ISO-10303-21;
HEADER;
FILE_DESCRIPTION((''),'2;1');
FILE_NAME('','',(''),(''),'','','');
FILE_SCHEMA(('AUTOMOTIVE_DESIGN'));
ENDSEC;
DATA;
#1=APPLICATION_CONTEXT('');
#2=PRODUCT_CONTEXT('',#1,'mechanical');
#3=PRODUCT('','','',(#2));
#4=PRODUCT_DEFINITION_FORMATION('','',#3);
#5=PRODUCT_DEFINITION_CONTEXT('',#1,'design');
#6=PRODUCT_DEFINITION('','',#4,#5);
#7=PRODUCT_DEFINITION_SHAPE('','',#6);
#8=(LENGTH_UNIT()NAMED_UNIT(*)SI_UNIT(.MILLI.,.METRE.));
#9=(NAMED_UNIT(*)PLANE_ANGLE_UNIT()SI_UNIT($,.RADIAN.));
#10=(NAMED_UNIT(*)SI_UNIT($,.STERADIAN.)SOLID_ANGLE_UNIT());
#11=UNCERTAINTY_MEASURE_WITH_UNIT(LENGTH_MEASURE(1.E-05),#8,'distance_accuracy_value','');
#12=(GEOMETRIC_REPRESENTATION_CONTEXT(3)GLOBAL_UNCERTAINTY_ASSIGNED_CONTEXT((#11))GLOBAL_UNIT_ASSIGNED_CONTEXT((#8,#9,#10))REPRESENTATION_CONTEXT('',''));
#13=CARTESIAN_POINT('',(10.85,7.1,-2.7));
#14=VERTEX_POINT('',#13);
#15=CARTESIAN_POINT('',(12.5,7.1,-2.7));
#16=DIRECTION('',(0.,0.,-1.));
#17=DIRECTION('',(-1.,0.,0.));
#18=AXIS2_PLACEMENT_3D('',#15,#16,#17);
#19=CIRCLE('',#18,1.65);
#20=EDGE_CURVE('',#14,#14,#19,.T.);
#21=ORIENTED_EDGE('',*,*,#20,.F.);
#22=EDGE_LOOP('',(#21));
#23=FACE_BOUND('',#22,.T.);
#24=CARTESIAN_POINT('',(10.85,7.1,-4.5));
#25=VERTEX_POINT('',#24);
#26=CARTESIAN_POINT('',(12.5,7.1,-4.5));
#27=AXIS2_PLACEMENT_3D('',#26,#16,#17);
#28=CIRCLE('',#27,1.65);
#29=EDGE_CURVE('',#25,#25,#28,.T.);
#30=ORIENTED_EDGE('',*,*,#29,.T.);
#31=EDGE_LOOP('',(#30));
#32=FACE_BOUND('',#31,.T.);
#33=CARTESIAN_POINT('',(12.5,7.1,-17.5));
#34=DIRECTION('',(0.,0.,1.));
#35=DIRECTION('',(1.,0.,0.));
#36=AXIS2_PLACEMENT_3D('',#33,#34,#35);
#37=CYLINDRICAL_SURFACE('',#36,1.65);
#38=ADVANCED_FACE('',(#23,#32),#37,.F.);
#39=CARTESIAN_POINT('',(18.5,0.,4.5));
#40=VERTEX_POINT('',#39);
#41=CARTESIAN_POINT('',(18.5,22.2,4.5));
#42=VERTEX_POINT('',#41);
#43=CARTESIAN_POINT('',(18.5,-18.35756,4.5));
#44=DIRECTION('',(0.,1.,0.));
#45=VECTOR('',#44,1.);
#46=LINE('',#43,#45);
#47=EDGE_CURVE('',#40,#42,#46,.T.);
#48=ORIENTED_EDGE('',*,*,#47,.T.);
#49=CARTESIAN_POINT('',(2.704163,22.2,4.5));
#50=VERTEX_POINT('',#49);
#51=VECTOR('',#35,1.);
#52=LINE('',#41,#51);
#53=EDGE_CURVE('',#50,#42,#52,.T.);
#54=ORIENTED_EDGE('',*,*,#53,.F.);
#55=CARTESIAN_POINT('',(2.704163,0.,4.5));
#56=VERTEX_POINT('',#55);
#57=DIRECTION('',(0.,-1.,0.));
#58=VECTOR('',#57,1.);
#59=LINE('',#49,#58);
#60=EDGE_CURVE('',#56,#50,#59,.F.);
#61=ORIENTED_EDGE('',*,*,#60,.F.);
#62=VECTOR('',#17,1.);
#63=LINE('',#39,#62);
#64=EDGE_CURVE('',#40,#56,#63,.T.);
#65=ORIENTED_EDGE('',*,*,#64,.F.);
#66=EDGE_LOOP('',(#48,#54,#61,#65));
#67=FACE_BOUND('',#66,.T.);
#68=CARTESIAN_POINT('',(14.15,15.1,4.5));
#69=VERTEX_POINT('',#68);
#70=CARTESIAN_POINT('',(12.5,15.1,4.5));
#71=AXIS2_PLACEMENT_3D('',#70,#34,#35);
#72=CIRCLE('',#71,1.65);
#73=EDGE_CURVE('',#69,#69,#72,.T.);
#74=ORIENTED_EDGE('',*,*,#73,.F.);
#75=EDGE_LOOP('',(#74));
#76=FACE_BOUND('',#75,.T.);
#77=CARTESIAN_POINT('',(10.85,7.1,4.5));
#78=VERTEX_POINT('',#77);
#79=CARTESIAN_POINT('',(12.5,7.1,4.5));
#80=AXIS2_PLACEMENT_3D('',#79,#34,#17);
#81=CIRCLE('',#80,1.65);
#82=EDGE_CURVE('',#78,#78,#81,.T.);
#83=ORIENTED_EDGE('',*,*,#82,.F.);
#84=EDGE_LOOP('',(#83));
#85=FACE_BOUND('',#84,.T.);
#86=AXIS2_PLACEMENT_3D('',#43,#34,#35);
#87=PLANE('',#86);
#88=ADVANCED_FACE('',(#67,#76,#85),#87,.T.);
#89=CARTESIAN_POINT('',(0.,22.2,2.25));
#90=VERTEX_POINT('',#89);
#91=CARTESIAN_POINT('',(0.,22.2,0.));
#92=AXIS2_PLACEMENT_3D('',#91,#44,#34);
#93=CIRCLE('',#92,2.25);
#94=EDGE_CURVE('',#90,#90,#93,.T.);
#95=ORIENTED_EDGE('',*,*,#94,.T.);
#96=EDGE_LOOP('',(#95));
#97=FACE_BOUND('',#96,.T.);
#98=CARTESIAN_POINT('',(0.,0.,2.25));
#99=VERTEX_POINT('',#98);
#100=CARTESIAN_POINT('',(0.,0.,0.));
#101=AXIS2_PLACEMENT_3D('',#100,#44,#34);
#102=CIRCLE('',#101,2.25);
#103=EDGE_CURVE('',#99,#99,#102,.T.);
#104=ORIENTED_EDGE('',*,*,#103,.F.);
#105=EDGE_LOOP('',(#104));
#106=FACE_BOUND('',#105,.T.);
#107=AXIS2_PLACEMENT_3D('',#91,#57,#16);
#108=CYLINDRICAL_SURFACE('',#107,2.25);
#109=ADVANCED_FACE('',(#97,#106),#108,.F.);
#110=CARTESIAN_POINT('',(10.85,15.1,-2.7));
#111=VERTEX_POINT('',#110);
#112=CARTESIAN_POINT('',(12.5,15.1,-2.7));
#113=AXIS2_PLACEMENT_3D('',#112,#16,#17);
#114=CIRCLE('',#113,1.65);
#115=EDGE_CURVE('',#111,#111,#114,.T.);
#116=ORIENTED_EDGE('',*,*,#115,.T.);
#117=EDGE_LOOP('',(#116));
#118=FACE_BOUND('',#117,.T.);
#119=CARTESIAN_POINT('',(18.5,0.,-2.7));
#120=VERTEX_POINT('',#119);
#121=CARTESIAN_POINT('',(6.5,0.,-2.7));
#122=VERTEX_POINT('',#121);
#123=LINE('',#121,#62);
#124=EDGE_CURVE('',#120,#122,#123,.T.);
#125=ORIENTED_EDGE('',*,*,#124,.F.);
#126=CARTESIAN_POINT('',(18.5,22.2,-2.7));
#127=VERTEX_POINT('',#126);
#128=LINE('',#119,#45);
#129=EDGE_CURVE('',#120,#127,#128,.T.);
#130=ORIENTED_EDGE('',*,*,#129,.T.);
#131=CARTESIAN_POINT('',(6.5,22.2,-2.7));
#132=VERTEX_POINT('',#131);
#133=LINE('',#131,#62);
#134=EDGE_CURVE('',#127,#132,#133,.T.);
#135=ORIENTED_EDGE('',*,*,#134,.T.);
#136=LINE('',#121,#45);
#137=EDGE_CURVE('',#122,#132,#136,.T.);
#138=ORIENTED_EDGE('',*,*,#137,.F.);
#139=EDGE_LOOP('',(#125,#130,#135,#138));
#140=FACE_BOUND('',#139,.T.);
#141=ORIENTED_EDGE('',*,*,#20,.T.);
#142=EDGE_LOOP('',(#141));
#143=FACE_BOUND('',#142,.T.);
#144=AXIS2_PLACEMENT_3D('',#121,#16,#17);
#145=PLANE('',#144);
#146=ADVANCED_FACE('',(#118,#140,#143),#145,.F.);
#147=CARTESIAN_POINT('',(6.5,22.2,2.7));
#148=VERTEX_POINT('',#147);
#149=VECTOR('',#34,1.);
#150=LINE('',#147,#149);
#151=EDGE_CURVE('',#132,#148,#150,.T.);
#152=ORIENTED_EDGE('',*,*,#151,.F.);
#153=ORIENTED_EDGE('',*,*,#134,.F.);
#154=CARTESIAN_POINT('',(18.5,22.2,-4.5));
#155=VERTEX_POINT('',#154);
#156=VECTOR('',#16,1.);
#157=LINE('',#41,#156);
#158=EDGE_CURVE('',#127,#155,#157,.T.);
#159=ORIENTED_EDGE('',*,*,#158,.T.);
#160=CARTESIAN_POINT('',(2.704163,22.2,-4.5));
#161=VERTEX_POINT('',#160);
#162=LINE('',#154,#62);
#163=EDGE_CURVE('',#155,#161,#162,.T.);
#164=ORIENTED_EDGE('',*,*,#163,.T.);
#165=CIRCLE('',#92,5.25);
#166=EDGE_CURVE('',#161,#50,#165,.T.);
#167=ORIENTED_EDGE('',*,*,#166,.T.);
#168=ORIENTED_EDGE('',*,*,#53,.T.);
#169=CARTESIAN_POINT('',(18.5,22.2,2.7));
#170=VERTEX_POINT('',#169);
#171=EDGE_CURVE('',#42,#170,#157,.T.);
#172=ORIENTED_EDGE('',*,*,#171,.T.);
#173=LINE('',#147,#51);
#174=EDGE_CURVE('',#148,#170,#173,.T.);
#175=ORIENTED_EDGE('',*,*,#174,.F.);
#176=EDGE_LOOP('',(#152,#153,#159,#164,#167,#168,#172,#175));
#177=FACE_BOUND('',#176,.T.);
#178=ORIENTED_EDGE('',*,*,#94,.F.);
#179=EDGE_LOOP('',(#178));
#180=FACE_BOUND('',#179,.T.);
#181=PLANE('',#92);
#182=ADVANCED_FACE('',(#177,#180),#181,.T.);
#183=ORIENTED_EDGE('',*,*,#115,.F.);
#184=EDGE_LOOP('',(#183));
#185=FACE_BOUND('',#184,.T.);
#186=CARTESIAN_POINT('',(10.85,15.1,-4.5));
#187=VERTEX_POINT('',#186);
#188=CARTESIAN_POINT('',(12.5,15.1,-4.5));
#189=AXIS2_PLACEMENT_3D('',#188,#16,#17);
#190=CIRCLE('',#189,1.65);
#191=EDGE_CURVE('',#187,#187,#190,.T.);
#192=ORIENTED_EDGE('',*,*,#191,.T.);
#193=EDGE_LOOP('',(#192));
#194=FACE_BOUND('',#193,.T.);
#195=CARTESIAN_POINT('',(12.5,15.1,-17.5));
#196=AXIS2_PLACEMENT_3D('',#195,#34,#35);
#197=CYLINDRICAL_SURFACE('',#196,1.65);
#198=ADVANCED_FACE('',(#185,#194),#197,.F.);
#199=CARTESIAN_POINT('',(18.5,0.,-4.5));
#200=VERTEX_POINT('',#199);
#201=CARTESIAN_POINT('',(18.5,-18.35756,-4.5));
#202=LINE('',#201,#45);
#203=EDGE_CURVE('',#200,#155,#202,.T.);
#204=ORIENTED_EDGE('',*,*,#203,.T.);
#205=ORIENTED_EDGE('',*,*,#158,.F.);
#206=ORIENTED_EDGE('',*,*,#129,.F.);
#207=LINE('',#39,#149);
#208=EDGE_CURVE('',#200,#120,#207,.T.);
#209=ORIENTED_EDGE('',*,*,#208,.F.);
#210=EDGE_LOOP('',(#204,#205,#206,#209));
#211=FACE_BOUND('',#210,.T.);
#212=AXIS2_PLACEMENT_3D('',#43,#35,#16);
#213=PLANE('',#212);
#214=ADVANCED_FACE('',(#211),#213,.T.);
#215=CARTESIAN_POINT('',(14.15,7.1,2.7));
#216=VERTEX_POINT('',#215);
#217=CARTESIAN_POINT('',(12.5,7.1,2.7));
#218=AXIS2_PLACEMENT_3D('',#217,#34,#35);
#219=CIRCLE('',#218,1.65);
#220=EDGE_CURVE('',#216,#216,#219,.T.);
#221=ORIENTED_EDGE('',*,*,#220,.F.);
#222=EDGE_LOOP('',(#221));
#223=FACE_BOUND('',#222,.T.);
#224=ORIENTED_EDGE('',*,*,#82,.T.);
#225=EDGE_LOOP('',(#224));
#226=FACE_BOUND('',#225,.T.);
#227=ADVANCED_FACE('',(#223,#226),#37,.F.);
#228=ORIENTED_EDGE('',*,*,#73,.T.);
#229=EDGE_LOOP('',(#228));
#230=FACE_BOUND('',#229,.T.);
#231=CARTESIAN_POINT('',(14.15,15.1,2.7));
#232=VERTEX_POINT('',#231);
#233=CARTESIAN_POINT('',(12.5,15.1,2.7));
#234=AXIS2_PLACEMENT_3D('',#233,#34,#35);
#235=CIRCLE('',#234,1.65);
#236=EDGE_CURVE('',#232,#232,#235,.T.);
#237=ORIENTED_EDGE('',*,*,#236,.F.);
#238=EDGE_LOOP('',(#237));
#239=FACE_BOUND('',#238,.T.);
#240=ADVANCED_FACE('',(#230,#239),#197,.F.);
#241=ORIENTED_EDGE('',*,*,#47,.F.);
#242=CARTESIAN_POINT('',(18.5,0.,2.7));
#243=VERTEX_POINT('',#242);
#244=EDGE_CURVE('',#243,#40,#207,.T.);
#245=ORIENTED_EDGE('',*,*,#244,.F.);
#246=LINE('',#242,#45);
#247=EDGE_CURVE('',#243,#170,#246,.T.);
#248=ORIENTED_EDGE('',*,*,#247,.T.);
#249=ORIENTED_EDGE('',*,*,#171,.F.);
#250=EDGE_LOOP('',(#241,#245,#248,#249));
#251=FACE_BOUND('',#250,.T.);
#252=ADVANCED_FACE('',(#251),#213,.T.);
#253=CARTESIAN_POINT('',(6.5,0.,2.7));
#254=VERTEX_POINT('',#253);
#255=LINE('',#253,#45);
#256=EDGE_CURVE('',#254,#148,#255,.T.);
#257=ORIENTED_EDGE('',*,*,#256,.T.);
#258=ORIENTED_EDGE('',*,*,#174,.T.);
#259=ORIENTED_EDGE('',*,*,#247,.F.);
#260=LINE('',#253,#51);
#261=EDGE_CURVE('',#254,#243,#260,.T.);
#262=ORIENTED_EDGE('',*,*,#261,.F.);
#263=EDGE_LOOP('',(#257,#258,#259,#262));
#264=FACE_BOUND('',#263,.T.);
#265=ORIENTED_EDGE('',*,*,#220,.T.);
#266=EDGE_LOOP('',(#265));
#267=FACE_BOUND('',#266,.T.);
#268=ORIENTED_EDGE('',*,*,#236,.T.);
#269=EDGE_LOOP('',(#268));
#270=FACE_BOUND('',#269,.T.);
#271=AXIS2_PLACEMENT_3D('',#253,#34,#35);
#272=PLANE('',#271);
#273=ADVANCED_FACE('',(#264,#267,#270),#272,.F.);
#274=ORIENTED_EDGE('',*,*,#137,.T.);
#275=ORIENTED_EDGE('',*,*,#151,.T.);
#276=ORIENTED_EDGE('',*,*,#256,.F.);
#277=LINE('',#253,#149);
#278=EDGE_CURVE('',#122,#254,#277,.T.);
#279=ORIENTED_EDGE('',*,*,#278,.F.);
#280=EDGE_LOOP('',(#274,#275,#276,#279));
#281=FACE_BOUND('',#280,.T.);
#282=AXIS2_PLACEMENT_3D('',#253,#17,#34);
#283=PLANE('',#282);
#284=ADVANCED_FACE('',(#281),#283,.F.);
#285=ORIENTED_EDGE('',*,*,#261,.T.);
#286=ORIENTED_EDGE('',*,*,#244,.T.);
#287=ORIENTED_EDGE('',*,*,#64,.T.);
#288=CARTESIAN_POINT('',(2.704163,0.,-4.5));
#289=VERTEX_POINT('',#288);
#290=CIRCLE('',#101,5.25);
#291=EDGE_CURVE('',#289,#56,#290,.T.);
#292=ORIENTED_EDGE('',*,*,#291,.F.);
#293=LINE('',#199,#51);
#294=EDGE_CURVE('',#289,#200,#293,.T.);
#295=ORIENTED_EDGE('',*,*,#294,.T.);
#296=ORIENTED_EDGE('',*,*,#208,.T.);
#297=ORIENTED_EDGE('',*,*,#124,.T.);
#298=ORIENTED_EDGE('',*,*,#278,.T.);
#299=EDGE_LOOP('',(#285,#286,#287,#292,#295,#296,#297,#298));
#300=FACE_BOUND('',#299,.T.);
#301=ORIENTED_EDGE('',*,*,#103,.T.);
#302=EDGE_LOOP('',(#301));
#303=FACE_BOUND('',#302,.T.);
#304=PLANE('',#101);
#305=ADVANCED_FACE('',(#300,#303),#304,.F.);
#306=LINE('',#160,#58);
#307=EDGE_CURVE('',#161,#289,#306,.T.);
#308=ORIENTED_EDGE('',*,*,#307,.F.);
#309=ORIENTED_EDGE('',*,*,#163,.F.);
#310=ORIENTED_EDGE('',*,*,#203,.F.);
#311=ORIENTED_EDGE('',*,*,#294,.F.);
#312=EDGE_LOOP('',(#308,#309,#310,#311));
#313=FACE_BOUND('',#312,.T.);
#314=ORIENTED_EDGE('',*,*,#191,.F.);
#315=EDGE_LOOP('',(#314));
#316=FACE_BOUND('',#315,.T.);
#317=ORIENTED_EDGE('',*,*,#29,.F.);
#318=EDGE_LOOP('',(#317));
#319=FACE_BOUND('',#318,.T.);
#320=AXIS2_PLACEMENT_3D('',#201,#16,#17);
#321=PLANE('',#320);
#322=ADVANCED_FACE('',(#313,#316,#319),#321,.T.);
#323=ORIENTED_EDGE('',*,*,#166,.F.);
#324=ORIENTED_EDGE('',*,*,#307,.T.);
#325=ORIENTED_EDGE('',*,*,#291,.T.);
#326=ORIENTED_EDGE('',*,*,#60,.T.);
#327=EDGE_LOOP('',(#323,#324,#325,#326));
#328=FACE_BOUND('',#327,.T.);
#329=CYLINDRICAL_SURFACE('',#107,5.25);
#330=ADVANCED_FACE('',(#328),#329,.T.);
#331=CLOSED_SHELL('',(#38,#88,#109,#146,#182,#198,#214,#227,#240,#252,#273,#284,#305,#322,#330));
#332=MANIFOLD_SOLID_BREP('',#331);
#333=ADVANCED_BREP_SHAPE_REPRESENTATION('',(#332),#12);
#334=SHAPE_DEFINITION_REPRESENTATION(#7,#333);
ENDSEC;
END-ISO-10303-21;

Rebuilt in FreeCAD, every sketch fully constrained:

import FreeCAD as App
import Part
import Sketcher

V = App.Vector
Q = App.Units.Quantity


def add_polygon(sketch, points):
    """Adds a closed chain of lines whose ends are joined by coincident constraints."""
    first, n = sketch.GeometryCount, len(points)
    for a, b in zip(points, points[1:] + points[:1]):
        sketch.addGeometry(Part.LineSegment(App.Vector(*a, 0), App.Vector(*b, 0)), False)
    for i in range(n):
        sketch.addConstraint(Sketcher.Constraint("Coincident", first + i, 2, first + (i + 1) % n, 1))

doc = App.newDocument("Part")
body = doc.addObject("PartDesign::Body", "Body")

# Sketch on XZ plane
sketch1 = body.newObject("Sketcher::SketchObject", "Sketch")
sketch1.AttachmentSupport = (doc.getObject("XZ_Plane"), [""])
sketch1.MapMode = "FlatFace"
sketch1.addGeometry(Part.Circle(V(0, 0, 0), V(0, 0, 1), 5.2), False)
sketch1.addGeometry(Part.Circle(V(0, 0, 0), V(0, 0, 1), 2.2), False)
sketch1.addConstraint(Sketcher.Constraint("Coincident", 0, 3, -1, 1))
sketch1.addConstraint(Sketcher.Constraint("Coincident", 1, 3, -1, 1))
sketch1.addConstraint(Sketcher.Constraint("Diameter", 0, Q("10.5 mm")))
sketch1.addConstraint(Sketcher.Constraint("Diameter", 1, Q("4.5 mm")))
pad1 = body.newObject("PartDesign::Pad", "Pad")
pad1.Profile = sketch1
pad1.Length = 22.2
pad1.Reversed = True

# Sketch on XZ plane
sketch2 = body.newObject("Sketcher::SketchObject", "Sketch001")
sketch2.AttachmentSupport = (doc.getObject("XZ_Plane"), [""])
sketch2.MapMode = "FlatFace"
sketch2.AttachmentOffset = App.Placement(V(0, 0, -22.2), App.Rotation())
add_polygon(sketch2, [(2, -4), (2, 4), (18, 4), (18, -4)])  # lines 0-3
sketch2.addConstraint(Sketcher.Constraint("Vertical", 0))
sketch2.addConstraint(Sketcher.Constraint("Horizontal", 1))
sketch2.addConstraint(Sketcher.Constraint("Vertical", 2))
sketch2.addConstraint(Sketcher.Constraint("Horizontal", 3))
sketch2.addConstraint(Sketcher.Constraint("DistanceX", 1, 1, 1, 2, Q("16 mm")))
sketch2.addConstraint(Sketcher.Constraint("DistanceY", 0, 1, 0, 2, Q("9 mm")))
sketch2.addConstraint(Sketcher.Constraint("DistanceX", -1, 1, 0, 2, Q("2.5 mm")))
sketch2.addConstraint(Sketcher.Constraint("DistanceY", -1, 1, 0, 2, Q("4.5 mm")))
pad2 = body.newObject("PartDesign::Pad", "Pad001")
pad2.Profile = sketch2
pad2.Length = 22.2

# Sketch on XZ plane
sketch3 = body.newObject("Sketcher::SketchObject", "Sketch002")
sketch3.AttachmentSupport = (doc.getObject("XZ_Plane"), [""])
sketch3.MapMode = "FlatFace"
sketch3.AttachmentOffset = App.Placement(V(0, 0, -22.2), App.Rotation())
add_polygon(sketch3, [(6, -3), (6, 3), (18, 3), (18, -3)])  # lines 0-3
sketch3.addConstraint(Sketcher.Constraint("Vertical", 0))
sketch3.addConstraint(Sketcher.Constraint("Horizontal", 1))
sketch3.addConstraint(Sketcher.Constraint("Vertical", 2))
sketch3.addConstraint(Sketcher.Constraint("Horizontal", 3))
sketch3.addConstraint(Sketcher.Constraint("DistanceX", 1, 1, 1, 2, Q("12 mm")))
sketch3.addConstraint(Sketcher.Constraint("DistanceY", 0, 1, 0, 2, Q("5.4 mm")))
sketch3.addConstraint(Sketcher.Constraint("DistanceX", -1, 1, 0, 2, Q("6.5 mm")))
sketch3.addConstraint(Sketcher.Constraint("DistanceY", -1, 1, 0, 2, Q("2.7 mm")))
pocket1 = body.newObject("PartDesign::Pocket", "Pocket")
pocket1.Profile = sketch3
pocket1.Type = "ThroughAll"
pocket1.Reversed = True

# Sketch on XY plane
sketch4 = body.newObject("Sketcher::SketchObject", "Sketch003")
sketch4.AttachmentSupport = (doc.getObject("XY_Plane"), [""])
sketch4.MapMode = "FlatFace"
sketch4.AttachmentOffset = App.Placement(V(0, 0, 4.5), App.Rotation())
sketch4.addGeometry(Part.Circle(V(12.5, 15.1, 0), V(0, 0, 1), 1.6), False)
sketch4.addGeometry(Part.Circle(V(12.5, 7.1, 0), V(0, 0, 1), 1.6), False)
sketch4.addConstraint(Sketcher.Constraint("Equal", 0, 1))
sketch4.addConstraint(Sketcher.Constraint("Vertical", 0, 3, 1, 3))
sketch4.addConstraint(Sketcher.Constraint("Diameter", 0, Q("3.3 mm")))
sketch4.addConstraint(Sketcher.Constraint("DistanceY", 1, 3, 0, 3, Q("8 mm")))
sketch4.addConstraint(Sketcher.Constraint("DistanceX", -1, 1, 0, 3, Q("12.5 mm")))
sketch4.addConstraint(Sketcher.Constraint("DistanceY", -1, 1, 0, 3, Q("15.1 mm")))
pocket2 = body.newObject("PartDesign::Pocket", "Pocket001")
pocket2.Profile = sketch4
pocket2.Length = 22

doc.recompute()
